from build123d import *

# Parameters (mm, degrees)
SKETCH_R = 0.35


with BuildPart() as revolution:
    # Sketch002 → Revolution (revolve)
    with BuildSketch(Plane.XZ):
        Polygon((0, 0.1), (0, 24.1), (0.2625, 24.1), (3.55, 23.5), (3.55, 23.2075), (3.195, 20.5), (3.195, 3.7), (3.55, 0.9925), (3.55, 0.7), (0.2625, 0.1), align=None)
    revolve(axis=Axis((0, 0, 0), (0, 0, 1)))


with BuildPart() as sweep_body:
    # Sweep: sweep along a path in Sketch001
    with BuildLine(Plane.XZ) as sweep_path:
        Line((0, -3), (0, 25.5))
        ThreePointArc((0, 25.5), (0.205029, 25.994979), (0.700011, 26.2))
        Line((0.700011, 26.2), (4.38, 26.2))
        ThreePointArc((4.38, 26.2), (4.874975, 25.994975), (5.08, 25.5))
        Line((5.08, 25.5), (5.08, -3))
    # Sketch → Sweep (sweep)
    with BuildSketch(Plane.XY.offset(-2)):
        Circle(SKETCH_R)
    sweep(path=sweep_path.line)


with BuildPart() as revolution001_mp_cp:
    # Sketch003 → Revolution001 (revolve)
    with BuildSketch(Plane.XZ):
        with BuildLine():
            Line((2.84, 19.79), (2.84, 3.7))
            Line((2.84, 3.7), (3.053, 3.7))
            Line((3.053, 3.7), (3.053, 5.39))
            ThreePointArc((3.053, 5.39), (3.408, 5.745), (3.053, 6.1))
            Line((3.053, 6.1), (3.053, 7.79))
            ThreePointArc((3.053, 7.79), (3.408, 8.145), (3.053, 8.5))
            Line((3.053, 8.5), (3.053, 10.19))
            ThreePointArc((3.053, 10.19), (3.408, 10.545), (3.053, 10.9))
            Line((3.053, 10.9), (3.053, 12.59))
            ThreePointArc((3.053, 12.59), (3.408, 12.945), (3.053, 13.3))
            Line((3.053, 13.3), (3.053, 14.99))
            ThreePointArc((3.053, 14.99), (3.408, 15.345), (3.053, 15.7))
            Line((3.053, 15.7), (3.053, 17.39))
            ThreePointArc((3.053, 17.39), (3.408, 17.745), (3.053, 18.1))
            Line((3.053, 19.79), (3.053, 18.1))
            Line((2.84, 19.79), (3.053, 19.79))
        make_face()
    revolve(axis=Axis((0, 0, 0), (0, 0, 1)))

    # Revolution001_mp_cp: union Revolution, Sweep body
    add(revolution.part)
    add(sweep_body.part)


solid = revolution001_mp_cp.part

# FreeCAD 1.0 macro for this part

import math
import FreeCAD as App
import Part
import Sketcher

V = App.Vector
Q = App.Units.Quantity


def add_polygon(sketch, points):
    """Adds a closed chain of lines whose ends are joined by coincident constraints."""
    first, n = sketch.GeometryCount, len(points)
    for a, b in zip(points, points[1:] + points[:1]):
        sketch.addGeometry(Part.LineSegment(App.Vector(*a, 0), App.Vector(*b, 0)), False)
    for i in range(n):
        sketch.addConstraint(Sketcher.Constraint("Coincident", first + i, 2, first + (i + 1) % n, 1))

doc = App.newDocument("Part")
body = doc.addObject("PartDesign::Body", "Body")

# Sketch on XZ plane
sketch1 = doc.addObject("Sketcher::SketchObject", "Sketch")
body.addObject(sketch1)
sketch1.AttachmentSupport = (doc.XZ_Plane, [""])
sketch1.MapMode = "FlatFace"
add_polygon(sketch1, [(0, 24.1), (0, 0.1), (0.26, 0.1), (3.55, 0.7), (3.55, 0.99), (3.19, 3.7), (3.19, 20.5), (3.55, 23.21), (3.55, 23.5), (0.26, 24.1)])  # lines 0-9
sketch1.addConstraint([
    Sketcher.Constraint("Vertical", 0),
    Sketcher.Constraint("Horizontal", 1),
    Sketcher.Constraint("Vertical", 3),
    Sketcher.Constraint("Vertical", 5),
    Sketcher.Constraint("Vertical", 7),
    Sketcher.Constraint("Horizontal", 9),
    Sketcher.Constraint("PointOnObject", 0, 2, -2),
    Sketcher.Constraint("Vertical", 3, 2, 6, 2),
    Sketcher.Constraint("Vertical", 1, 2, 8, 2),
    Sketcher.Constraint("Equal", 3, 7),
    Sketcher.Constraint("Equal", 4, 6),
    Sketcher.Constraint("Equal", 2, 8),
    Sketcher.Constraint("DistanceY", 0, 2, 0, 1, Q("24 mm")),
    Sketcher.Constraint("DistanceY", 5, 1, 5, 2, Q("16.8 mm")),
    Sketcher.Constraint("DistanceY", 2, 2, 4, 2, Q("3 mm")),
    Sketcher.Constraint("DistanceY", -1, 1, 0, 2, Q("0.1 mm")),
    Sketcher.Constraint("DistanceX", -1, 1, 2, 2, Q("3.55 mm")),
    Sketcher.Constraint("DistanceX", 1, 1, 1, 2, Q("0.2625 mm")),
    Sketcher.Constraint("DistanceY", 3, 1, 3, 2, Q("0.2925 mm")),
    Sketcher.Constraint("DistanceX", -1, 1, 4, 2, Q("3.195 mm")),
])
revolution = doc.addObject("PartDesign::Revolution", "Revolution")
body.addObject(revolution)
revolution.Profile = sketch1
revolution.ReferenceAxis = (sketch1, ["V_Axis"])
revolution.Angle = 360
body2 = doc.addObject("PartDesign::Body", "Body001")

# Sketch on XY plane
sketch2 = doc.addObject("Sketcher::SketchObject", "Sketch001")
body2.addObject(sketch2)
sketch2.AttachmentSupport = (doc.getObject("XY_Plane001"), [""])
sketch2.MapMode = "FlatFace"
sketch2.AttachmentOffset = App.Placement(V(0, 0, -2), App.Rotation())
sketch2.addGeometry(Part.Circle(V(0, 0, 0), V(0, 0, 1), 0.35), False)
sketch2.addConstraint([
    Sketcher.Constraint("Coincident", 0, 3, -1, 1),
    Sketcher.Constraint("Diameter", 0, Q("0.7 mm")),
])

# Sketch on XZ plane
sketch3 = doc.addObject("Sketcher::SketchObject", "Sketch002")
body2.addObject(sketch3)
sketch3.AttachmentSupport = (doc.getObject("XZ_Plane001"), [""])
sketch3.MapMode = "FlatFace"
sketch3.addGeometry([
    Part.LineSegment(V(0, -3, 0), V(0, 25.5, 0)),  # 0
    Part.ArcOfCircle(Part.Circle(V(0.7, 25.5, 0), V(0, 0, 1), 0.7), math.radians(90), math.radians(180)),  # 1
    Part.LineSegment(V(0.7, 26.2, 0), V(4.4, 26.2, 0)),  # 2
    Part.ArcOfCircle(Part.Circle(V(4.4, 25.5, 0), V(0, 0, 1), 0.7), math.radians(0), math.radians(90)),  # 3
    Part.LineSegment(V(5.1, 25.5, 0), V(5.1, -3, 0)),  # 4
], False)
sketch3.addConstraint([
    Sketcher.Constraint("Tangent", 0, 2, 1, 2),
    Sketcher.Constraint("Coincident", 1, 1, 2, 1),
    Sketcher.Constraint("Tangent", 2, 2, 3, 2),
    Sketcher.Constraint("Tangent", 3, 1, 4, 1),
    Sketcher.Constraint("Vertical", 0),
    Sketcher.Constraint("Horizontal", 2),
    Sketcher.Constraint("Vertical", 4),
    Sketcher.Constraint("Equal", 1, 3),
    Sketcher.Constraint("PointOnObject", 0, 1, -2),
    Sketcher.Constraint("Horizontal", 0, 1, 4, 2),
    Sketcher.Constraint("Radius", 1, Q("0.699999 mm")),
    Sketcher.Constraint("DistanceY", 0, 1, 0, 2, Q("28.5 mm")),
    Sketcher.Constraint("DistanceY", 0, 1, -1, 1, Q("3 mm")),
    Sketcher.Constraint("DistanceX", -1, 1, 3, 3, Q("4.380001 mm")),
    Sketcher.Constraint("DistanceX", 2, 1, 2, 2, Q("3.679989 mm")),
])
doc.recompute()

additivepipe = doc.addObject("PartDesign::AdditivePipe", "AdditivePipe")
body2.addObject(additivepipe)
additivepipe.Profile = sketch2
additivepipe.Spine = (sketch3, ["Edge1", "Edge2", "Edge3", "Edge4", "Edge5"])
body3 = doc.addObject("PartDesign::Body", "Body002")

# Sketch on XZ plane
sketch4 = doc.addObject("Sketcher::SketchObject", "Sketch003")
body3.addObject(sketch4)
sketch4.AttachmentSupport = (doc.getObject("XZ_Plane002"), [""])
sketch4.MapMode = "FlatFace"
sketch4.addGeometry([
    Part.LineSegment(V(2.84, 19.79, 0), V(2.84, 3.7, 0)),  # 0
    Part.LineSegment(V(2.84, 3.7, 0), V(3.05, 3.7, 0)),  # 1
    Part.LineSegment(V(3.05, 3.7, 0), V(3.05, 5.39, 0)),  # 2
    Part.ArcOfCircle(Part.Circle(V(3.05, 5.75, 0), V(0, 0, 1), 0.35), math.radians(-90), math.radians(90)),  # 3
    Part.LineSegment(V(3.05, 6.1, 0), V(3.05, 7.79, 0)),  # 4
    Part.ArcOfCircle(Part.Circle(V(3.05, 8.14, 0), V(0, 0, 1), 0.35), math.radians(-90), math.radians(90)),  # 5
    Part.LineSegment(V(3.05, 8.5, 0), V(3.05, 10.19, 0)),  # 6
    Part.ArcOfCircle(Part.Circle(V(3.05, 10.54, 0), V(0, 0, 1), 0.35), math.radians(-90), math.radians(90)),  # 7
    Part.LineSegment(V(3.05, 10.9, 0), V(3.05, 12.59, 0)),  # 8
    Part.ArcOfCircle(Part.Circle(V(3.05, 12.95, 0), V(0, 0, 1), 0.35), math.radians(-90), math.radians(90)),  # 9
    Part.LineSegment(V(3.05, 13.3, 0), V(3.05, 14.99, 0)),  # 10
    Part.ArcOfCircle(Part.Circle(V(3.05, 15.35, 0), V(0, 0, 1), 0.35), math.radians(-90), math.radians(90)),  # 11
    Part.LineSegment(V(3.05, 15.7, 0), V(3.05, 17.39, 0)),  # 12
    Part.ArcOfCircle(Part.Circle(V(3.05, 17.75, 0), V(0, 0, 1), 0.35), math.radians(-90), math.radians(90)),  # 13
    Part.LineSegment(V(3.05, 18.1, 0), V(3.05, 19.79, 0)),  # 14
    Part.LineSegment(V(3.05, 19.79, 0), V(2.84, 19.79, 0)),  # 15
], False)
sketch4.addConstraint([
    Sketcher.Constraint("Coincident", 0, 2, 1, 1),
    Sketcher.Constraint("Coincident", 1, 2, 2, 1),
    Sketcher.Constraint("Coincident", 2, 2, 3, 1),
    Sketcher.Constraint("Coincident", 3, 2, 4, 1),
    Sketcher.Constraint("Coincident", 4, 2, 5, 1),
    Sketcher.Constraint("Coincident", 5, 2, 6, 1),
    Sketcher.Constraint("Coincident", 6, 2, 7, 1),
    Sketcher.Constraint("Coincident", 7, 2, 8, 1),
    Sketcher.Constraint("Coincident", 8, 2, 9, 1),
    Sketcher.Constraint("Coincident", 9, 2, 10, 1),
    Sketcher.Constraint("Coincident", 10, 2, 11, 1),
    Sketcher.Constraint("Coincident", 11, 2, 12, 1),
    Sketcher.Constraint("Coincident", 12, 2, 13, 1),
    Sketcher.Constraint("Coincident", 13, 2, 14, 1),
    Sketcher.Constraint("Coincident", 14, 2, 15, 1),
    Sketcher.Constraint("Coincident", 15, 2, 0, 1),
    Sketcher.Constraint("Vertical", 0),
    Sketcher.Constraint("Horizontal", 1),
    Sketcher.Constraint("Vertical", 2),
    Sketcher.Constraint("Vertical", 4),
    Sketcher.Constraint("Vertical", 6),
    Sketcher.Constraint("Vertical", 8),
    Sketcher.Constraint("Vertical", 10),
    Sketcher.Constraint("Vertical", 12),
    Sketcher.Constraint("Vertical", 14),
    Sketcher.Constraint("Horizontal", 15),
    Sketcher.Constraint("Equal", 3, 5),
    Sketcher.Constraint("Equal", 5, 7),
    Sketcher.Constraint("Equal", 7, 9),
    Sketcher.Constraint("Equal", 9, 11),
    Sketcher.Constraint("Equal", 11, 13),
    Sketcher.Constraint("Vertical", 3, 3, 5, 3),
    Sketcher.Constraint("Vertical", 5, 3, 7, 3),
    Sketcher.Constraint("Vertical", 7, 3, 9, 3),
    Sketcher.Constraint("Vertical", 9, 3, 11, 3),
    Sketcher.Constraint("Vertical", 11, 3, 13, 3),
    Sketcher.Constraint("Vertical", 13, 3, 1, 2),
    Sketcher.Constraint("Vertical", 2, 2, 3, 2),
    Sketcher.Constraint("Vertical", 4, 2, 5, 2),
    Sketcher.Constraint("Vertical", 6, 2, 7, 2),
    Sketcher.Constraint("Vertical", 8, 2, 9, 2),
    Sketcher.Constraint("Vertical", 10, 2, 11, 2),
    Sketcher.Constraint("Vertical", 12, 2, 13, 2),
    Sketcher.Constraint("Equal", 2, 4),
    Sketcher.Constraint("Equal", 4, 6),
    Sketcher.Constraint("Equal", 6, 8),
    Sketcher.Constraint("Equal", 8, 10),
    Sketcher.Constraint("Equal", 10, 12),
    Sketcher.Constraint("Equal", 12, 14),
    Sketcher.Constraint("Radius", 3, Q("0.355 mm")),
    Sketcher.Constraint("DistanceY", 3, 3, 13, 3, Q("12 mm")),
    Sketcher.Constraint("DistanceY", -1, 1, 0, 2, Q("3.7 mm")),
    Sketcher.Constraint("DistanceX", 1, 1, 1, 2, Q("0.213 mm")),
    Sketcher.Constraint("DistanceX", -1, 1, 0, 2, Q("2.84 mm")),
])
revolution2 = doc.addObject("PartDesign::Revolution", "Revolution001")
body3.addObject(revolution2)
revolution2.Profile = sketch4
revolution2.ReferenceAxis = (sketch4, ["V_Axis"])
revolution2.Angle = 360
doc.recompute()

boolean = doc.addObject("PartDesign::Boolean", "Boolean")
body3.addObject(boolean)
boolean.Type = "Fuse"
boolean.addObjects([body])
doc.recompute()

boolean2 = doc.addObject("PartDesign::Boolean", "Boolean001")
body3.addObject(boolean2)
boolean2.Type = "Fuse"
boolean2.addObjects([body2])

doc.recompute()
